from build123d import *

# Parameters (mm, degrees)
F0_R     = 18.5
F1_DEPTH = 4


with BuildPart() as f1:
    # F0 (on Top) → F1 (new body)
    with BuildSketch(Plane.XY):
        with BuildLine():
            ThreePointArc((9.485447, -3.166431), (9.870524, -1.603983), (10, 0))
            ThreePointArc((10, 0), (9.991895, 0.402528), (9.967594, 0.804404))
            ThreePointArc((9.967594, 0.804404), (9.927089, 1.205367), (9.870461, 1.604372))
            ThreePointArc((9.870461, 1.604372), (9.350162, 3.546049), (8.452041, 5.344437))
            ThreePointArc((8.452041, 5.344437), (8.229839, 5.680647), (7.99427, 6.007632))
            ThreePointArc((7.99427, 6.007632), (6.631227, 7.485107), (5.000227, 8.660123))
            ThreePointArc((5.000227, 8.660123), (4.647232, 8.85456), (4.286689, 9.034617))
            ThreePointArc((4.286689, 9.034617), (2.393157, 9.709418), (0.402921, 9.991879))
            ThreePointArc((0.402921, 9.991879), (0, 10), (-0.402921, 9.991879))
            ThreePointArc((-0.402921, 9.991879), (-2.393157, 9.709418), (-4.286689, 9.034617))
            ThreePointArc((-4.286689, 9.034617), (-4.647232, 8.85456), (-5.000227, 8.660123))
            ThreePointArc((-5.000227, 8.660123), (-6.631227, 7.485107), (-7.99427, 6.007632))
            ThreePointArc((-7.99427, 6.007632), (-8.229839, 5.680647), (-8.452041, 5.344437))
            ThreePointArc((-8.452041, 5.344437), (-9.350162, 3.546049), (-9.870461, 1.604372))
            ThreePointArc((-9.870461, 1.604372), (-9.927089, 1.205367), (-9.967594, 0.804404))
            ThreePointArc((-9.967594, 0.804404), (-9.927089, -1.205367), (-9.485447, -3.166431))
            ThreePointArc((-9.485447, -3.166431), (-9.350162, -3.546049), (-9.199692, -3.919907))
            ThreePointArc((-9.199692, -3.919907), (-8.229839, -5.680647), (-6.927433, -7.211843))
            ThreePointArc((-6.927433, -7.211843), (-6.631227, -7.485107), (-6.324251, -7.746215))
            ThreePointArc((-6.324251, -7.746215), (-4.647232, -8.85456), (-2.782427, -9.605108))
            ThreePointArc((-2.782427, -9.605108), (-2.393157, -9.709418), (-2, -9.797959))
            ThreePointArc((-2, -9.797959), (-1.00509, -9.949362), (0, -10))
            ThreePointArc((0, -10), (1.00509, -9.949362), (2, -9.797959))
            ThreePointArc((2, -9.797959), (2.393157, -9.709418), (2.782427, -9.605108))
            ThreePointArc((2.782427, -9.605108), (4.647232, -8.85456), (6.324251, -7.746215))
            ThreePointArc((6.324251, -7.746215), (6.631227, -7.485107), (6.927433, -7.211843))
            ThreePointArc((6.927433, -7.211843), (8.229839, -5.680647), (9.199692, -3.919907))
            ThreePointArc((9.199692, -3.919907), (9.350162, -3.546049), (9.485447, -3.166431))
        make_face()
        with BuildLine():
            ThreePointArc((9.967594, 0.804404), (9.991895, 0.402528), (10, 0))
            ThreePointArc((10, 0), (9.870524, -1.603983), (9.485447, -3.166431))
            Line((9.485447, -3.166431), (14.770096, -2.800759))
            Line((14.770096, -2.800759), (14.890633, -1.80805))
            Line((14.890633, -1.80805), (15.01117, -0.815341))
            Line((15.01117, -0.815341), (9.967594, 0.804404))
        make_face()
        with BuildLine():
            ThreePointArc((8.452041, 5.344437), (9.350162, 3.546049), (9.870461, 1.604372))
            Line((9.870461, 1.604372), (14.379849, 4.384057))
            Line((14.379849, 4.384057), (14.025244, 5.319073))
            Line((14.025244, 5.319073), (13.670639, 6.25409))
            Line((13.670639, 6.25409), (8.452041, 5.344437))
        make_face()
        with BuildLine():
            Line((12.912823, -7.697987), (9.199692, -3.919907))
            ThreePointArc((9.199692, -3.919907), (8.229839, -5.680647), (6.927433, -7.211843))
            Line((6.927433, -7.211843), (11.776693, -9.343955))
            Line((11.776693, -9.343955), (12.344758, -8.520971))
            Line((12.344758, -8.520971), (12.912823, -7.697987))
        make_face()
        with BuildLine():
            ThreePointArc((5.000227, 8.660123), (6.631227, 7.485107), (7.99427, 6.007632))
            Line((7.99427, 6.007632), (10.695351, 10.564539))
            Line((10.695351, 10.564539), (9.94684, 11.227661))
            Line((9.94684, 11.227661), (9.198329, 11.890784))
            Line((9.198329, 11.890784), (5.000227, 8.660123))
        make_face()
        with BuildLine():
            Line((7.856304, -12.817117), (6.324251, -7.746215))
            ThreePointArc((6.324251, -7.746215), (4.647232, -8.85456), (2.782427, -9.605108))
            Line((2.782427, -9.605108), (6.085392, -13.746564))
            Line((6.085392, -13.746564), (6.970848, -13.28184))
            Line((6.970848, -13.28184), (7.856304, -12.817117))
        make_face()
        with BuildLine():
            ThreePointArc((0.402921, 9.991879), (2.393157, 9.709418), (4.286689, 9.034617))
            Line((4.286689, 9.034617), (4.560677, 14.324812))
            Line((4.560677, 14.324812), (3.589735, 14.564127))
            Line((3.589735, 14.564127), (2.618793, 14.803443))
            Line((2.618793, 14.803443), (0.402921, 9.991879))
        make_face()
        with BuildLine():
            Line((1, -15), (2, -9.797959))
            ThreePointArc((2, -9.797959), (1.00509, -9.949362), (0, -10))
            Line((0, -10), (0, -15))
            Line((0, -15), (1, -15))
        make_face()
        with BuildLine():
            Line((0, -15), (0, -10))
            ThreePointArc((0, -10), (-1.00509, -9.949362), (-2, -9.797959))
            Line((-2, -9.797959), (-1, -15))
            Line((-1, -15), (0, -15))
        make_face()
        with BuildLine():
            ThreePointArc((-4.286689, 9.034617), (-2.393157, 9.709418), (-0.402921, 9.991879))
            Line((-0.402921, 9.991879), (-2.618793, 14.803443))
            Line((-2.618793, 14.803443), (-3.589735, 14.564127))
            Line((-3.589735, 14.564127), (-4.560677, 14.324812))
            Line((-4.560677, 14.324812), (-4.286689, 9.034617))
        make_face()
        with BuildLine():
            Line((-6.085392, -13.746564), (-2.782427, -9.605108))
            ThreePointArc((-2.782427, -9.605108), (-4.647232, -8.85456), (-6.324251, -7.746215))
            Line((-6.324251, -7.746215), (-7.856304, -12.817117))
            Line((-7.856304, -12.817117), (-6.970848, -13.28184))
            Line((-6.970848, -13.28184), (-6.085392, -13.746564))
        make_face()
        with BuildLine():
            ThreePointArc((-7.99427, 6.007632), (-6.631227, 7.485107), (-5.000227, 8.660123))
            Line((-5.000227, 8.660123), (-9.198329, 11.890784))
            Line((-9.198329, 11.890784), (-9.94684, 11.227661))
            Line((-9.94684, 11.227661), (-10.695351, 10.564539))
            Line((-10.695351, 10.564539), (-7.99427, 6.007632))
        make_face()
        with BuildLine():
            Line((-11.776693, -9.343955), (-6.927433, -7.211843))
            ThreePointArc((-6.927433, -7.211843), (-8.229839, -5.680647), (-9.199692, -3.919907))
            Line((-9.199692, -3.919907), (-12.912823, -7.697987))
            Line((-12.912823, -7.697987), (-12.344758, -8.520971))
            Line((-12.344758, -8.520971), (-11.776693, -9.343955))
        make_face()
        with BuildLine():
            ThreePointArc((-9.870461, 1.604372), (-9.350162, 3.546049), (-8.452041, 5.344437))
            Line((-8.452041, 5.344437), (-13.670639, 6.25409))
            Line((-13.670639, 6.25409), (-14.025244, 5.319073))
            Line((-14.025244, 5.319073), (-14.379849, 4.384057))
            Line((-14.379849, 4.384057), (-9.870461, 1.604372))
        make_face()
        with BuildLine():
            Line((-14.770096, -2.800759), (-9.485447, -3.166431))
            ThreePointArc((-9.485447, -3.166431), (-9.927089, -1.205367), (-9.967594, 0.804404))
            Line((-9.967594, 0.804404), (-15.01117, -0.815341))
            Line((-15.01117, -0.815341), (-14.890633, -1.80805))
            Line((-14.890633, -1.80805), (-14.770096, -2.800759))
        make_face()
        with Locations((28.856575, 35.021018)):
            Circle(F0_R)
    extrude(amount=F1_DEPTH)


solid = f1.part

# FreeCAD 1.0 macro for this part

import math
import FreeCAD as App
import Part
import Sketcher
from FreeCAD import Vector
Q = App.Units.Quantity

doc = App.newDocument("Part")
body = doc.addObject("PartDesign::Body", "Body")
body.AllowCompound = True

# Sketch on XY plane
sketch1 = body.newObject("Sketcher::SketchObject", "Sketch")
sketch1.AttachmentSupport = (doc.getObject("XY_Plane"), [""])
sketch1.MapMode = "FlatFace"
sketch1.addGeometry([
    Part.ArcOfCircle(Part.Circle(Vector(0.000165, 0.000029, 0), Vector(0, 0, 1), 9.999833), math.radians(4.613792), math.radians(9.232262)),  # 0
    Part.LineSegment(Vector(9.870461, 1.604372, 0), Vector(14.379849, 4.384057, 0)),  # 1
    Part.LineSegment(Vector(14.379849, 4.384057, 0), Vector(14.025244, 5.319073, 0)),  # 2
    Part.LineSegment(Vector(14.025244, 5.319073, 0), Vector(13.670639, 6.25409, 0)),  # 3
    Part.LineSegment(Vector(13.670639, 6.25409, 0), Vector(8.452041, 5.344437, 0)),  # 4
    Part.ArcOfCircle(Part.Circle(Vector(0.000044, 0.000024, 0), Vector(0, 0, 1), 9.99995), math.radians(32.306212), math.radians(36.924621)),  # 5
    Part.LineSegment(Vector(7.99427, 6.007632, 0), Vector(10.695351, 10.564539, 0)),  # 6
    Part.LineSegment(Vector(10.695351, 10.564539, 0), Vector(9.94684, 11.227661, 0)),  # 7
    Part.LineSegment(Vector(9.94684, 11.227661, 0), Vector(9.198329, 11.890784, 0)),  # 8
    Part.LineSegment(Vector(9.198329, 11.890784, 0), Vector(5.000227, 8.660123, 0)),  # 9
    Part.ArcOfCircle(Part.Circle(Vector(-0.000164, -0.000304, 0), Vector(0, 0, 1), 10.000346), math.radians(59.998555), math.radians(64.616783)),  # 10
    Part.LineSegment(Vector(4.286689, 9.034617, 0), Vector(4.560677, 14.324812, 0)),  # 11
    Part.LineSegment(Vector(4.560677, 14.324812, 0), Vector(3.589735, 14.564127, 0)),  # 12
    Part.LineSegment(Vector(3.589735, 14.564127, 0), Vector(2.618793, 14.803443, 0)),  # 13
    Part.LineSegment(Vector(2.618793, 14.803443, 0), Vector(0.402921, 9.991879, 0)),  # 14
    Part.ArcOfCircle(Part.Circle(Vector(0, 0.000537, 0), Vector(0, 0, 1), 9.999463), math.radians(87.690684), math.radians(92.309316)),  # 15
    Part.LineSegment(Vector(-0.402921, 9.991879, 0), Vector(-2.618793, 14.803443, 0)),  # 16
    Part.LineSegment(Vector(-2.618793, 14.803443, 0), Vector(-3.589735, 14.564127, 0)),  # 17
    Part.LineSegment(Vector(-3.589735, 14.564127, 0), Vector(-4.560677, 14.324812, 0)),  # 18
    Part.LineSegment(Vector(-4.560677, 14.324812, 0), Vector(-4.286689, 9.034617, 0)),  # 19
    Part.ArcOfCircle(Part.Circle(Vector(0.000164, -0.000304, 0), Vector(0, 0, 1), 10.000346), math.radians(115.383217), math.radians(120.001445)),  # 20
    Part.LineSegment(Vector(-5.000227, 8.660123, 0), Vector(-9.198329, 11.890784, 0)),  # 21
    Part.LineSegment(Vector(-9.198329, 11.890784, 0), Vector(-9.94684, 11.227661, 0)),  # 22
    Part.LineSegment(Vector(-9.94684, 11.227661, 0), Vector(-10.695351, 10.564539, 0)),  # 23
    Part.LineSegment(Vector(-10.695351, 10.564539, 0), Vector(-7.99427, 6.007632, 0)),  # 24
    Part.ArcOfCircle(Part.Circle(Vector(-0.000044, 0.000024, 0), Vector(0, 0, 1), 9.99995), math.radians(143.075379), math.radians(147.693788)),  # 25
    Part.LineSegment(Vector(-8.452041, 5.344437, 0), Vector(-13.670639, 6.25409, 0)),  # 26
    Part.LineSegment(Vector(-13.670639, 6.25409, 0), Vector(-14.025244, 5.319073, 0)),  # 27
    Part.LineSegment(Vector(-14.025244, 5.319073, 0), Vector(-14.379849, 4.384057, 0)),  # 28
    Part.LineSegment(Vector(-14.379849, 4.384057, 0), Vector(-9.870461, 1.604372, 0)),  # 29
    Part.ArcOfCircle(Part.Circle(Vector(-0.000165, 0.000029, 0), Vector(0, 0, 1), 9.999833), math.radians(170.767738), math.radians(175.386208)),  # 30
    Part.LineSegment(Vector(-9.967594, 0.804404, 0), Vector(-15.01117, -0.815341, 0)),  # 31
    Part.LineSegment(Vector(-15.01117, -0.815341, 0), Vector(-14.770096, -2.800759, 0)),  # 32
    Part.LineSegment(Vector(-14.770096, -2.800759, 0), Vector(-9.485447, -3.166431, 0)),  # 33
    Part.ArcOfCircle(Part.Circle(Vector(0.000233, 0.000079, 0), Vector(0, 0, 1), 10.000245), math.radians(-161.539956), math.radians(-156.921682)),  # 34
    Part.LineSegment(Vector(-9.199692, -3.919907, 0), Vector(-12.912823, -7.697987, 0)),  # 35
    Part.LineSegment(Vector(-12.912823, -7.697987, 0), Vector(-11.776693, -9.343955, 0)),  # 36
    Part.LineSegment(Vector(-11.776693, -9.343955, 0), Vector(-6.927433, -7.211843, 0)),  # 37
    Part.ArcOfCircle(Part.Circle(Vector(0.000165, 0.000196, 0), Vector(0, 0, 1), 10.000256), math.radians(-133.847563), math.radians(-129.229294)),  # 38
    Part.LineSegment(Vector(-6.324251, -7.746215, 0), Vector(-7.856304, -12.817117, 0)),  # 39
    Part.LineSegment(Vector(-7.856304, -12.817117, 0), Vector(-6.970848, -13.28184, 0)),  # 40
    Part.LineSegment(Vector(-6.970848, -13.28184, 0), Vector(-6.085392, -13.746564, 0)),  # 41
    Part.LineSegment(Vector(-6.085392, -13.746564, 0), Vector(-2.782427, -9.605108, 0)),  # 42
    Part.ArcOfCircle(Part.Circle(Vector(0.000027, 0.000108, 0), Vector(0, 0, 1), 10.000111), math.radians(-106.155329), math.radians(-101.536988)),  # 43
    Part.LineSegment(Vector(-2, -9.797959, 0), Vector(-1, -15, 0)),  # 44
    Part.LineSegment(Vector(-1, -15, 0), Vector(1, -15, 0)),  # 45
    Part.LineSegment(Vector(1, -15, 0), Vector(2, -9.797959, 0)),  # 46
    Part.ArcOfCircle(Part.Circle(Vector(-0.000027, 0.000108, 0), Vector(0, 0, 1), 10.000111), math.radians(-78.463012), math.radians(-73.844671)),  # 47
    Part.LineSegment(Vector(2.782427, -9.605108, 0), Vector(6.085392, -13.746564, 0)),  # 48
    Part.LineSegment(Vector(6.085392, -13.746564, 0), Vector(6.970848, -13.28184, 0)),  # 49
    Part.LineSegment(Vector(6.970848, -13.28184, 0), Vector(7.856304, -12.817117, 0)),  # 50
    Part.LineSegment(Vector(7.856304, -12.817117, 0), Vector(6.324251, -7.746215, 0)),  # 51
    Part.ArcOfCircle(Part.Circle(Vector(-0.000165, 0.000196, 0), Vector(0, 0, 1), 10.000256), math.radians(-50.770706), math.radians(-46.152437)),  # 52
    Part.LineSegment(Vector(6.927433, -7.211843, 0), Vector(11.776693, -9.343955, 0)),  # 53
    Part.LineSegment(Vector(11.776693, -9.343955, 0), Vector(12.912823, -7.697987, 0)),  # 54
    Part.LineSegment(Vector(12.912823, -7.697987, 0), Vector(9.199692, -3.919907, 0)),  # 55
    Part.ArcOfCircle(Part.Circle(Vector(-0.000233, 0.000079, 0), Vector(0, 0, 1), 10.000245), math.radians(-23.078318), math.radians(-18.460044)),  # 56
    Part.LineSegment(Vector(9.485447, -3.166431, 0), Vector(14.770096, -2.800759, 0)),  # 57
    Part.LineSegment(Vector(14.770096, -2.800759, 0), Vector(15.01117, -0.815341, 0)),  # 58
    Part.LineSegment(Vector(15.01117, -0.815341, 0), Vector(9.967594, 0.804404, 0)),  # 59
    Part.Circle(Vector(28.856575, 35.021018, 0), Vector(0, 0, 1), 18.5),  # 60
], False)
sketch1.addConstraint([
    Sketcher.Constraint("Coincident", 0, 2, 1, 1),
    Sketcher.Constraint("Coincident", 1, 2, 2, 1),
    Sketcher.Constraint("Coincident", 2, 2, 3, 1),
    Sketcher.Constraint("Coincident", 3, 2, 4, 1),
    Sketcher.Constraint("Coincident", 4, 2, 5, 1),
    Sketcher.Constraint("Coincident", 5, 2, 6, 1),
    Sketcher.Constraint("Coincident", 6, 2, 7, 1),
    Sketcher.Constraint("Coincident", 7, 2, 8, 1),
    Sketcher.Constraint("Coincident", 8, 2, 9, 1),
    Sketcher.Constraint("Coincident", 9, 2, 10, 1),
    Sketcher.Constraint("Coincident", 10, 2, 11, 1),
    Sketcher.Constraint("Coincident", 11, 2, 12, 1),
    Sketcher.Constraint("Coincident", 12, 2, 13, 1),
    Sketcher.Constraint("Coincident", 13, 2, 14, 1),
    Sketcher.Constraint("Coincident", 14, 2, 15, 1),
    Sketcher.Constraint("Coincident", 15, 2, 16, 1),
    Sketcher.Constraint("Coincident", 16, 2, 17, 1),
    Sketcher.Constraint("Coincident", 17, 2, 18, 1),
    Sketcher.Constraint("Coincident", 18, 2, 19, 1),
    Sketcher.Constraint("Coincident", 19, 2, 20, 1),
    Sketcher.Constraint("Coincident", 20, 2, 21, 1),
    Sketcher.Constraint("Coincident", 21, 2, 22, 1),
    Sketcher.Constraint("Coincident", 22, 2, 23, 1),
    Sketcher.Constraint("Coincident", 23, 2, 24, 1),
    Sketcher.Constraint("Coincident", 24, 2, 25, 1),
    Sketcher.Constraint("Coincident", 25, 2, 26, 1),
    Sketcher.Constraint("Coincident", 26, 2, 27, 1),
    Sketcher.Constraint("Coincident", 27, 2, 28, 1),
    Sketcher.Constraint("Coincident", 28, 2, 29, 1),
    Sketcher.Constraint("Coincident", 29, 2, 30, 1),
    Sketcher.Constraint("Coincident", 30, 2, 31, 1),
    Sketcher.Constraint("Coincident", 31, 2, 32, 1),
    Sketcher.Constraint("Coincident", 32, 2, 33, 1),
    Sketcher.Constraint("Coincident", 33, 2, 34, 1),
    Sketcher.Constraint("Coincident", 34, 2, 35, 1),
    Sketcher.Constraint("Coincident", 35, 2, 36, 1),
    Sketcher.Constraint("Coincident", 36, 2, 37, 1),
    Sketcher.Constraint("Coincident", 37, 2, 38, 1),
    Sketcher.Constraint("Coincident", 38, 2, 39, 1),
    Sketcher.Constraint("Coincident", 39, 2, 40, 1),
    Sketcher.Constraint("Coincident", 40, 2, 41, 1),
    Sketcher.Constraint("Coincident", 41, 2, 42, 1),
    Sketcher.Constraint("Coincident", 42, 2, 43, 1),
    Sketcher.Constraint("Coincident", 43, 2, 44, 1),
    Sketcher.Constraint("Coincident", 44, 2, 45, 1),
    Sketcher.Constraint("Coincident", 45, 2, 46, 1),
    Sketcher.Constraint("Coincident", 46, 2, 47, 1),
    Sketcher.Constraint("Coincident", 47, 2, 48, 1),
    Sketcher.Constraint("Coincident", 48, 2, 49, 1),
    Sketcher.Constraint("Coincident", 49, 2, 50, 1),
    Sketcher.Constraint("Coincident", 50, 2, 51, 1),
    Sketcher.Constraint("Coincident", 51, 2, 52, 1),
    Sketcher.Constraint("Coincident", 52, 2, 53, 1),
    Sketcher.Constraint("Coincident", 53, 2, 54, 1),
    Sketcher.Constraint("Coincident", 54, 2, 55, 1),
    Sketcher.Constraint("Coincident", 55, 2, 56, 1),
    Sketcher.Constraint("Coincident", 56, 2, 57, 1),
    Sketcher.Constraint("Coincident", 57, 2, 58, 1),
    Sketcher.Constraint("Coincident", 58, 2, 59, 1),
    Sketcher.Constraint("Coincident", 59, 2, 0, 1),
    Sketcher.Constraint("Horizontal", 45),
    Sketcher.Constraint("Equal", 10, 20),
    Sketcher.Constraint("Equal", 5, 25),
    Sketcher.Constraint("Equal", 0, 30),
    Sketcher.Constraint("Equal", 43, 47),
    Sketcher.Constraint("Equal", 38, 52),
    Sketcher.Constraint("Equal", 34, 56),
    Sketcher.Constraint("Symmetric", 10, 3, 20, 3, -2),
    Sketcher.Constraint("Symmetric", 5, 3, 25, 3, -2),
    Sketcher.Constraint("Symmetric", 0, 3, 30, 3, -2),
    Sketcher.Constraint("Symmetric", 43, 3, 47, 3, -2),
    Sketcher.Constraint("Symmetric", 38, 3, 52, 3, -2),
    Sketcher.Constraint("Symmetric", 34, 3, 56, 3, -2),
    Sketcher.Constraint("Symmetric", 14, 2, 15, 2, -2),
    Sketcher.Constraint("Symmetric", 13, 2, 16, 2, -2),
    Sketcher.Constraint("Symmetric", 12, 2, 17, 2, -2),
    Sketcher.Constraint("Symmetric", 11, 2, 18, 2, -2),
    Sketcher.Constraint("Symmetric", 8, 2, 21, 2, -2),
    Sketcher.Constraint("Symmetric", 7, 2, 22, 2, -2),
    Sketcher.Constraint("Symmetric", 6, 2, 23, 2, -2),
    Sketcher.Constraint("Symmetric", 3, 2, 26, 2, -2),
    Sketcher.Constraint("Symmetric", 2, 2, 27, 2, -2),
    Sketcher.Constraint("Symmetric", 1, 2, 28, 2, -2),
    Sketcher.Constraint("Symmetric", 41, 2, 48, 2, -2),
    Sketcher.Constraint("Symmetric", 40, 2, 49, 2, -2),
    Sketcher.Constraint("Symmetric", 39, 2, 50, 2, -2),
    Sketcher.Constraint("Symmetric", 36, 2, 53, 2, -2),
    Sketcher.Constraint("Symmetric", 35, 2, 54, 2, -2),
    Sketcher.Constraint("Symmetric", 32, 2, 57, 2, -2),
    Sketcher.Constraint("Symmetric", 31, 2, 58, 2, -2),
    Sketcher.Constraint("Parallel", 2, 3),
    Sketcher.Constraint("Parallel", 7, 8),
    Sketcher.Constraint("Parallel", 12, 13),
    Sketcher.Constraint("Parallel", 40, 41),
    Sketcher.Constraint("Horizontal", 10, 2, 19, 2),
    Sketcher.Constraint("Horizontal", 9, 2, 20, 2),
    Sketcher.Constraint("Horizontal", 5, 2, 24, 2),
    Sketcher.Constraint("Horizontal", 4, 2, 25, 2),
    Sketcher.Constraint("Horizontal", 0, 2, 29, 2),
    Sketcher.Constraint("Horizontal", 43, 2, 46, 2),
    Sketcher.Constraint("Horizontal", 42, 2, 47, 2),
    Sketcher.Constraint("Horizontal", 38, 2, 51, 2),
    Sketcher.Constraint("Horizontal", 37, 2, 52, 2),
    Sketcher.Constraint("Horizontal", 34, 2, 55, 2),
    Sketcher.Constraint("Horizontal", 33, 2, 56, 2),
    Sketcher.Constraint("Horizontal", 30, 2, 59, 2),
    Sketcher.Constraint("Vertical", 0, 3, 20, 3),
    Sketcher.Constraint("Vertical", 20, 3, 38, 3),
    Sketcher.Constraint("Equal", 2, 3),
    Sketcher.Constraint("Equal", 1, 4),
    Sketcher.Constraint("Equal", 4, 6),
    Sketcher.Constraint("Equal", 3, 7),
    Sketcher.Constraint("Equal", 7, 8),
    Sketcher.Constraint("Equal", 6, 9),
    Sketcher.Constraint("Equal", 9, 11),
    Sketcher.Constraint("Equal", 8, 12),
    Sketcher.Constraint("Equal", 12, 13),
    Sketcher.Constraint("Equal", 11, 14),
    Sketcher.Constraint("Equal", 29, 31),
    Sketcher.Constraint("Equal", 31, 33),
    Sketcher.Constraint("Equal", 33, 35),
    Sketcher.Constraint("Equal", 32, 36),
    Sketcher.Constraint("Equal", 35, 37),
    Sketcher.Constraint("Equal", 37, 39),
    Sketcher.Constraint("Equal", 28, 40),
    Sketcher.Constraint("Equal", 40, 41),
    Sketcher.Constraint("Equal", 39, 42),
    Sketcher.Constraint("Equal", 42, 44),
    Sketcher.Constraint("Equal", 44, 46),
    Sketcher.Constraint("Diameter", 60, Q("37 mm")),
    Sketcher.Constraint("DistanceX", 45, 1, 45, 2, Q("2 mm")),
    Sketcher.Constraint("Distance", 2, Q("1 mm")),
    Sketcher.Constraint("Distance", 32, Q("2 mm")),
    Sketcher.Constraint("DistanceX", 43, 2, -1, 1, Q("2 mm")),
    Sketcher.Constraint("DistanceY", 44, 2, -1, 1, Q("15 mm")),
    Sketcher.Constraint("Radius", 5, Q("9.99995 mm")),
    Sketcher.Constraint("Radius", 43, Q("10.000111 mm")),
    Sketcher.Constraint("Radius", 0, Q("9.999833 mm")),
    Sketcher.Constraint("Radius", 10, Q("10.000346 mm")),
    Sketcher.Constraint("Radius", 15, Q("9.999463 mm")),
    Sketcher.Constraint("Radius", 34, Q("10.000245 mm")),
    Sketcher.Constraint("Radius", 38, Q("10.000256 mm")),
    Sketcher.Constraint("DistanceX", -1, 1, 0, 2, Q("9.870461 mm")),
    Sketcher.Constraint("DistanceY", -1, 1, 0, 2, Q("1.604372 mm")),
    Sketcher.Constraint("DistanceX", -1, 1, 1, 2, Q("14.379849 mm")),
    Sketcher.Constraint("DistanceX", -1, 1, 3, 2, Q("13.670639 mm")),
    Sketcher.Constraint("DistanceY", -1, 1, 3, 2, Q("6.25409 mm")),
    Sketcher.Constraint("DistanceX", -1, 1, 4, 2, Q("8.452041 mm")),
    Sketcher.Constraint("DistanceX", -1, 1, 5, 2, Q("7.99427 mm")),
    Sketcher.Constraint("DistanceY", -1, 1, 5, 2, Q("6.007632 mm")),
    Sketcher.Constraint("DistanceX", -1, 1, 6, 2, Q("10.695351 mm")),
    Sketcher.Constraint("DistanceX", -1, 1, 7, 2, Q("9.94684 mm")),
    Sketcher.Constraint("DistanceX", -1, 1, 10, 2, Q("4.286689 mm")),
    Sketcher.Constraint("DistanceX", -1, 1, 14, 2, Q("0.402921 mm")),
    Sketcher.Constraint("DistanceY", -1, 1, 14, 2, Q("9.991879 mm")),
    Sketcher.Constraint("DistanceX", 31, 2, -1, 1, Q("15.01117 mm")),
    Sketcher.Constraint("DistanceY", 31, 2, -1, 1, Q("0.815341 mm")),
    Sketcher.Constraint("DistanceY", 32, 2, -1, 1, Q("2.800759 mm")),
    Sketcher.Constraint("DistanceY", 33, 2, -1, 1, Q("3.166431 mm")),
    Sketcher.Constraint("DistanceX", 38, 2, -1, 1, Q("6.324251 mm")),
    Sketcher.Constraint("DistanceY", 40, 2, -1, 1, Q("13.28184 mm")),
    Sketcher.Constraint("DistanceX", 41, 2, -1, 1, Q("6.085392 mm")),
    Sketcher.Constraint("DistanceX", -1, 1, 0, 3, Q("0.000165 mm")),
    Sketcher.Constraint("DistanceY", 10, 3, -1, 1, Q("0.000304 mm")),
    Sketcher.Constraint("DistanceX", -1, 1, 34, 3, Q("0.000233 mm")),
    Sketcher.Constraint("DistanceY", -1, 1, 38, 3, Q("0.000196 mm")),
    Sketcher.Constraint("DistanceY", -1, 1, 43, 3, Q("0.000108 mm")),
    Sketcher.Constraint("DistanceX", -1, 1, 60, 3, Q("28.856575 mm")),
    Sketcher.Constraint("DistanceY", -1, 1, 60, 3, Q("35.021018 mm")),
    Sketcher.Constraint("DistanceX", -1, 1, 11, 2, Q("4.560677 mm")),
    Sketcher.Constraint("DistanceX", 34, 2, -1, 1, Q("9.199692 mm")),
    Sketcher.Constraint("DistanceX", 35, 2, -1, 1, Q("12.912823 mm")),
    Sketcher.Constraint("DistanceX", 36, 2, -1, 1, Q("11.776693 mm")),
])
pad1 = body.newObject("PartDesign::Pad", "Pad")
pad1.Profile = sketch1
pad1.Length = 4

doc.recompute()
